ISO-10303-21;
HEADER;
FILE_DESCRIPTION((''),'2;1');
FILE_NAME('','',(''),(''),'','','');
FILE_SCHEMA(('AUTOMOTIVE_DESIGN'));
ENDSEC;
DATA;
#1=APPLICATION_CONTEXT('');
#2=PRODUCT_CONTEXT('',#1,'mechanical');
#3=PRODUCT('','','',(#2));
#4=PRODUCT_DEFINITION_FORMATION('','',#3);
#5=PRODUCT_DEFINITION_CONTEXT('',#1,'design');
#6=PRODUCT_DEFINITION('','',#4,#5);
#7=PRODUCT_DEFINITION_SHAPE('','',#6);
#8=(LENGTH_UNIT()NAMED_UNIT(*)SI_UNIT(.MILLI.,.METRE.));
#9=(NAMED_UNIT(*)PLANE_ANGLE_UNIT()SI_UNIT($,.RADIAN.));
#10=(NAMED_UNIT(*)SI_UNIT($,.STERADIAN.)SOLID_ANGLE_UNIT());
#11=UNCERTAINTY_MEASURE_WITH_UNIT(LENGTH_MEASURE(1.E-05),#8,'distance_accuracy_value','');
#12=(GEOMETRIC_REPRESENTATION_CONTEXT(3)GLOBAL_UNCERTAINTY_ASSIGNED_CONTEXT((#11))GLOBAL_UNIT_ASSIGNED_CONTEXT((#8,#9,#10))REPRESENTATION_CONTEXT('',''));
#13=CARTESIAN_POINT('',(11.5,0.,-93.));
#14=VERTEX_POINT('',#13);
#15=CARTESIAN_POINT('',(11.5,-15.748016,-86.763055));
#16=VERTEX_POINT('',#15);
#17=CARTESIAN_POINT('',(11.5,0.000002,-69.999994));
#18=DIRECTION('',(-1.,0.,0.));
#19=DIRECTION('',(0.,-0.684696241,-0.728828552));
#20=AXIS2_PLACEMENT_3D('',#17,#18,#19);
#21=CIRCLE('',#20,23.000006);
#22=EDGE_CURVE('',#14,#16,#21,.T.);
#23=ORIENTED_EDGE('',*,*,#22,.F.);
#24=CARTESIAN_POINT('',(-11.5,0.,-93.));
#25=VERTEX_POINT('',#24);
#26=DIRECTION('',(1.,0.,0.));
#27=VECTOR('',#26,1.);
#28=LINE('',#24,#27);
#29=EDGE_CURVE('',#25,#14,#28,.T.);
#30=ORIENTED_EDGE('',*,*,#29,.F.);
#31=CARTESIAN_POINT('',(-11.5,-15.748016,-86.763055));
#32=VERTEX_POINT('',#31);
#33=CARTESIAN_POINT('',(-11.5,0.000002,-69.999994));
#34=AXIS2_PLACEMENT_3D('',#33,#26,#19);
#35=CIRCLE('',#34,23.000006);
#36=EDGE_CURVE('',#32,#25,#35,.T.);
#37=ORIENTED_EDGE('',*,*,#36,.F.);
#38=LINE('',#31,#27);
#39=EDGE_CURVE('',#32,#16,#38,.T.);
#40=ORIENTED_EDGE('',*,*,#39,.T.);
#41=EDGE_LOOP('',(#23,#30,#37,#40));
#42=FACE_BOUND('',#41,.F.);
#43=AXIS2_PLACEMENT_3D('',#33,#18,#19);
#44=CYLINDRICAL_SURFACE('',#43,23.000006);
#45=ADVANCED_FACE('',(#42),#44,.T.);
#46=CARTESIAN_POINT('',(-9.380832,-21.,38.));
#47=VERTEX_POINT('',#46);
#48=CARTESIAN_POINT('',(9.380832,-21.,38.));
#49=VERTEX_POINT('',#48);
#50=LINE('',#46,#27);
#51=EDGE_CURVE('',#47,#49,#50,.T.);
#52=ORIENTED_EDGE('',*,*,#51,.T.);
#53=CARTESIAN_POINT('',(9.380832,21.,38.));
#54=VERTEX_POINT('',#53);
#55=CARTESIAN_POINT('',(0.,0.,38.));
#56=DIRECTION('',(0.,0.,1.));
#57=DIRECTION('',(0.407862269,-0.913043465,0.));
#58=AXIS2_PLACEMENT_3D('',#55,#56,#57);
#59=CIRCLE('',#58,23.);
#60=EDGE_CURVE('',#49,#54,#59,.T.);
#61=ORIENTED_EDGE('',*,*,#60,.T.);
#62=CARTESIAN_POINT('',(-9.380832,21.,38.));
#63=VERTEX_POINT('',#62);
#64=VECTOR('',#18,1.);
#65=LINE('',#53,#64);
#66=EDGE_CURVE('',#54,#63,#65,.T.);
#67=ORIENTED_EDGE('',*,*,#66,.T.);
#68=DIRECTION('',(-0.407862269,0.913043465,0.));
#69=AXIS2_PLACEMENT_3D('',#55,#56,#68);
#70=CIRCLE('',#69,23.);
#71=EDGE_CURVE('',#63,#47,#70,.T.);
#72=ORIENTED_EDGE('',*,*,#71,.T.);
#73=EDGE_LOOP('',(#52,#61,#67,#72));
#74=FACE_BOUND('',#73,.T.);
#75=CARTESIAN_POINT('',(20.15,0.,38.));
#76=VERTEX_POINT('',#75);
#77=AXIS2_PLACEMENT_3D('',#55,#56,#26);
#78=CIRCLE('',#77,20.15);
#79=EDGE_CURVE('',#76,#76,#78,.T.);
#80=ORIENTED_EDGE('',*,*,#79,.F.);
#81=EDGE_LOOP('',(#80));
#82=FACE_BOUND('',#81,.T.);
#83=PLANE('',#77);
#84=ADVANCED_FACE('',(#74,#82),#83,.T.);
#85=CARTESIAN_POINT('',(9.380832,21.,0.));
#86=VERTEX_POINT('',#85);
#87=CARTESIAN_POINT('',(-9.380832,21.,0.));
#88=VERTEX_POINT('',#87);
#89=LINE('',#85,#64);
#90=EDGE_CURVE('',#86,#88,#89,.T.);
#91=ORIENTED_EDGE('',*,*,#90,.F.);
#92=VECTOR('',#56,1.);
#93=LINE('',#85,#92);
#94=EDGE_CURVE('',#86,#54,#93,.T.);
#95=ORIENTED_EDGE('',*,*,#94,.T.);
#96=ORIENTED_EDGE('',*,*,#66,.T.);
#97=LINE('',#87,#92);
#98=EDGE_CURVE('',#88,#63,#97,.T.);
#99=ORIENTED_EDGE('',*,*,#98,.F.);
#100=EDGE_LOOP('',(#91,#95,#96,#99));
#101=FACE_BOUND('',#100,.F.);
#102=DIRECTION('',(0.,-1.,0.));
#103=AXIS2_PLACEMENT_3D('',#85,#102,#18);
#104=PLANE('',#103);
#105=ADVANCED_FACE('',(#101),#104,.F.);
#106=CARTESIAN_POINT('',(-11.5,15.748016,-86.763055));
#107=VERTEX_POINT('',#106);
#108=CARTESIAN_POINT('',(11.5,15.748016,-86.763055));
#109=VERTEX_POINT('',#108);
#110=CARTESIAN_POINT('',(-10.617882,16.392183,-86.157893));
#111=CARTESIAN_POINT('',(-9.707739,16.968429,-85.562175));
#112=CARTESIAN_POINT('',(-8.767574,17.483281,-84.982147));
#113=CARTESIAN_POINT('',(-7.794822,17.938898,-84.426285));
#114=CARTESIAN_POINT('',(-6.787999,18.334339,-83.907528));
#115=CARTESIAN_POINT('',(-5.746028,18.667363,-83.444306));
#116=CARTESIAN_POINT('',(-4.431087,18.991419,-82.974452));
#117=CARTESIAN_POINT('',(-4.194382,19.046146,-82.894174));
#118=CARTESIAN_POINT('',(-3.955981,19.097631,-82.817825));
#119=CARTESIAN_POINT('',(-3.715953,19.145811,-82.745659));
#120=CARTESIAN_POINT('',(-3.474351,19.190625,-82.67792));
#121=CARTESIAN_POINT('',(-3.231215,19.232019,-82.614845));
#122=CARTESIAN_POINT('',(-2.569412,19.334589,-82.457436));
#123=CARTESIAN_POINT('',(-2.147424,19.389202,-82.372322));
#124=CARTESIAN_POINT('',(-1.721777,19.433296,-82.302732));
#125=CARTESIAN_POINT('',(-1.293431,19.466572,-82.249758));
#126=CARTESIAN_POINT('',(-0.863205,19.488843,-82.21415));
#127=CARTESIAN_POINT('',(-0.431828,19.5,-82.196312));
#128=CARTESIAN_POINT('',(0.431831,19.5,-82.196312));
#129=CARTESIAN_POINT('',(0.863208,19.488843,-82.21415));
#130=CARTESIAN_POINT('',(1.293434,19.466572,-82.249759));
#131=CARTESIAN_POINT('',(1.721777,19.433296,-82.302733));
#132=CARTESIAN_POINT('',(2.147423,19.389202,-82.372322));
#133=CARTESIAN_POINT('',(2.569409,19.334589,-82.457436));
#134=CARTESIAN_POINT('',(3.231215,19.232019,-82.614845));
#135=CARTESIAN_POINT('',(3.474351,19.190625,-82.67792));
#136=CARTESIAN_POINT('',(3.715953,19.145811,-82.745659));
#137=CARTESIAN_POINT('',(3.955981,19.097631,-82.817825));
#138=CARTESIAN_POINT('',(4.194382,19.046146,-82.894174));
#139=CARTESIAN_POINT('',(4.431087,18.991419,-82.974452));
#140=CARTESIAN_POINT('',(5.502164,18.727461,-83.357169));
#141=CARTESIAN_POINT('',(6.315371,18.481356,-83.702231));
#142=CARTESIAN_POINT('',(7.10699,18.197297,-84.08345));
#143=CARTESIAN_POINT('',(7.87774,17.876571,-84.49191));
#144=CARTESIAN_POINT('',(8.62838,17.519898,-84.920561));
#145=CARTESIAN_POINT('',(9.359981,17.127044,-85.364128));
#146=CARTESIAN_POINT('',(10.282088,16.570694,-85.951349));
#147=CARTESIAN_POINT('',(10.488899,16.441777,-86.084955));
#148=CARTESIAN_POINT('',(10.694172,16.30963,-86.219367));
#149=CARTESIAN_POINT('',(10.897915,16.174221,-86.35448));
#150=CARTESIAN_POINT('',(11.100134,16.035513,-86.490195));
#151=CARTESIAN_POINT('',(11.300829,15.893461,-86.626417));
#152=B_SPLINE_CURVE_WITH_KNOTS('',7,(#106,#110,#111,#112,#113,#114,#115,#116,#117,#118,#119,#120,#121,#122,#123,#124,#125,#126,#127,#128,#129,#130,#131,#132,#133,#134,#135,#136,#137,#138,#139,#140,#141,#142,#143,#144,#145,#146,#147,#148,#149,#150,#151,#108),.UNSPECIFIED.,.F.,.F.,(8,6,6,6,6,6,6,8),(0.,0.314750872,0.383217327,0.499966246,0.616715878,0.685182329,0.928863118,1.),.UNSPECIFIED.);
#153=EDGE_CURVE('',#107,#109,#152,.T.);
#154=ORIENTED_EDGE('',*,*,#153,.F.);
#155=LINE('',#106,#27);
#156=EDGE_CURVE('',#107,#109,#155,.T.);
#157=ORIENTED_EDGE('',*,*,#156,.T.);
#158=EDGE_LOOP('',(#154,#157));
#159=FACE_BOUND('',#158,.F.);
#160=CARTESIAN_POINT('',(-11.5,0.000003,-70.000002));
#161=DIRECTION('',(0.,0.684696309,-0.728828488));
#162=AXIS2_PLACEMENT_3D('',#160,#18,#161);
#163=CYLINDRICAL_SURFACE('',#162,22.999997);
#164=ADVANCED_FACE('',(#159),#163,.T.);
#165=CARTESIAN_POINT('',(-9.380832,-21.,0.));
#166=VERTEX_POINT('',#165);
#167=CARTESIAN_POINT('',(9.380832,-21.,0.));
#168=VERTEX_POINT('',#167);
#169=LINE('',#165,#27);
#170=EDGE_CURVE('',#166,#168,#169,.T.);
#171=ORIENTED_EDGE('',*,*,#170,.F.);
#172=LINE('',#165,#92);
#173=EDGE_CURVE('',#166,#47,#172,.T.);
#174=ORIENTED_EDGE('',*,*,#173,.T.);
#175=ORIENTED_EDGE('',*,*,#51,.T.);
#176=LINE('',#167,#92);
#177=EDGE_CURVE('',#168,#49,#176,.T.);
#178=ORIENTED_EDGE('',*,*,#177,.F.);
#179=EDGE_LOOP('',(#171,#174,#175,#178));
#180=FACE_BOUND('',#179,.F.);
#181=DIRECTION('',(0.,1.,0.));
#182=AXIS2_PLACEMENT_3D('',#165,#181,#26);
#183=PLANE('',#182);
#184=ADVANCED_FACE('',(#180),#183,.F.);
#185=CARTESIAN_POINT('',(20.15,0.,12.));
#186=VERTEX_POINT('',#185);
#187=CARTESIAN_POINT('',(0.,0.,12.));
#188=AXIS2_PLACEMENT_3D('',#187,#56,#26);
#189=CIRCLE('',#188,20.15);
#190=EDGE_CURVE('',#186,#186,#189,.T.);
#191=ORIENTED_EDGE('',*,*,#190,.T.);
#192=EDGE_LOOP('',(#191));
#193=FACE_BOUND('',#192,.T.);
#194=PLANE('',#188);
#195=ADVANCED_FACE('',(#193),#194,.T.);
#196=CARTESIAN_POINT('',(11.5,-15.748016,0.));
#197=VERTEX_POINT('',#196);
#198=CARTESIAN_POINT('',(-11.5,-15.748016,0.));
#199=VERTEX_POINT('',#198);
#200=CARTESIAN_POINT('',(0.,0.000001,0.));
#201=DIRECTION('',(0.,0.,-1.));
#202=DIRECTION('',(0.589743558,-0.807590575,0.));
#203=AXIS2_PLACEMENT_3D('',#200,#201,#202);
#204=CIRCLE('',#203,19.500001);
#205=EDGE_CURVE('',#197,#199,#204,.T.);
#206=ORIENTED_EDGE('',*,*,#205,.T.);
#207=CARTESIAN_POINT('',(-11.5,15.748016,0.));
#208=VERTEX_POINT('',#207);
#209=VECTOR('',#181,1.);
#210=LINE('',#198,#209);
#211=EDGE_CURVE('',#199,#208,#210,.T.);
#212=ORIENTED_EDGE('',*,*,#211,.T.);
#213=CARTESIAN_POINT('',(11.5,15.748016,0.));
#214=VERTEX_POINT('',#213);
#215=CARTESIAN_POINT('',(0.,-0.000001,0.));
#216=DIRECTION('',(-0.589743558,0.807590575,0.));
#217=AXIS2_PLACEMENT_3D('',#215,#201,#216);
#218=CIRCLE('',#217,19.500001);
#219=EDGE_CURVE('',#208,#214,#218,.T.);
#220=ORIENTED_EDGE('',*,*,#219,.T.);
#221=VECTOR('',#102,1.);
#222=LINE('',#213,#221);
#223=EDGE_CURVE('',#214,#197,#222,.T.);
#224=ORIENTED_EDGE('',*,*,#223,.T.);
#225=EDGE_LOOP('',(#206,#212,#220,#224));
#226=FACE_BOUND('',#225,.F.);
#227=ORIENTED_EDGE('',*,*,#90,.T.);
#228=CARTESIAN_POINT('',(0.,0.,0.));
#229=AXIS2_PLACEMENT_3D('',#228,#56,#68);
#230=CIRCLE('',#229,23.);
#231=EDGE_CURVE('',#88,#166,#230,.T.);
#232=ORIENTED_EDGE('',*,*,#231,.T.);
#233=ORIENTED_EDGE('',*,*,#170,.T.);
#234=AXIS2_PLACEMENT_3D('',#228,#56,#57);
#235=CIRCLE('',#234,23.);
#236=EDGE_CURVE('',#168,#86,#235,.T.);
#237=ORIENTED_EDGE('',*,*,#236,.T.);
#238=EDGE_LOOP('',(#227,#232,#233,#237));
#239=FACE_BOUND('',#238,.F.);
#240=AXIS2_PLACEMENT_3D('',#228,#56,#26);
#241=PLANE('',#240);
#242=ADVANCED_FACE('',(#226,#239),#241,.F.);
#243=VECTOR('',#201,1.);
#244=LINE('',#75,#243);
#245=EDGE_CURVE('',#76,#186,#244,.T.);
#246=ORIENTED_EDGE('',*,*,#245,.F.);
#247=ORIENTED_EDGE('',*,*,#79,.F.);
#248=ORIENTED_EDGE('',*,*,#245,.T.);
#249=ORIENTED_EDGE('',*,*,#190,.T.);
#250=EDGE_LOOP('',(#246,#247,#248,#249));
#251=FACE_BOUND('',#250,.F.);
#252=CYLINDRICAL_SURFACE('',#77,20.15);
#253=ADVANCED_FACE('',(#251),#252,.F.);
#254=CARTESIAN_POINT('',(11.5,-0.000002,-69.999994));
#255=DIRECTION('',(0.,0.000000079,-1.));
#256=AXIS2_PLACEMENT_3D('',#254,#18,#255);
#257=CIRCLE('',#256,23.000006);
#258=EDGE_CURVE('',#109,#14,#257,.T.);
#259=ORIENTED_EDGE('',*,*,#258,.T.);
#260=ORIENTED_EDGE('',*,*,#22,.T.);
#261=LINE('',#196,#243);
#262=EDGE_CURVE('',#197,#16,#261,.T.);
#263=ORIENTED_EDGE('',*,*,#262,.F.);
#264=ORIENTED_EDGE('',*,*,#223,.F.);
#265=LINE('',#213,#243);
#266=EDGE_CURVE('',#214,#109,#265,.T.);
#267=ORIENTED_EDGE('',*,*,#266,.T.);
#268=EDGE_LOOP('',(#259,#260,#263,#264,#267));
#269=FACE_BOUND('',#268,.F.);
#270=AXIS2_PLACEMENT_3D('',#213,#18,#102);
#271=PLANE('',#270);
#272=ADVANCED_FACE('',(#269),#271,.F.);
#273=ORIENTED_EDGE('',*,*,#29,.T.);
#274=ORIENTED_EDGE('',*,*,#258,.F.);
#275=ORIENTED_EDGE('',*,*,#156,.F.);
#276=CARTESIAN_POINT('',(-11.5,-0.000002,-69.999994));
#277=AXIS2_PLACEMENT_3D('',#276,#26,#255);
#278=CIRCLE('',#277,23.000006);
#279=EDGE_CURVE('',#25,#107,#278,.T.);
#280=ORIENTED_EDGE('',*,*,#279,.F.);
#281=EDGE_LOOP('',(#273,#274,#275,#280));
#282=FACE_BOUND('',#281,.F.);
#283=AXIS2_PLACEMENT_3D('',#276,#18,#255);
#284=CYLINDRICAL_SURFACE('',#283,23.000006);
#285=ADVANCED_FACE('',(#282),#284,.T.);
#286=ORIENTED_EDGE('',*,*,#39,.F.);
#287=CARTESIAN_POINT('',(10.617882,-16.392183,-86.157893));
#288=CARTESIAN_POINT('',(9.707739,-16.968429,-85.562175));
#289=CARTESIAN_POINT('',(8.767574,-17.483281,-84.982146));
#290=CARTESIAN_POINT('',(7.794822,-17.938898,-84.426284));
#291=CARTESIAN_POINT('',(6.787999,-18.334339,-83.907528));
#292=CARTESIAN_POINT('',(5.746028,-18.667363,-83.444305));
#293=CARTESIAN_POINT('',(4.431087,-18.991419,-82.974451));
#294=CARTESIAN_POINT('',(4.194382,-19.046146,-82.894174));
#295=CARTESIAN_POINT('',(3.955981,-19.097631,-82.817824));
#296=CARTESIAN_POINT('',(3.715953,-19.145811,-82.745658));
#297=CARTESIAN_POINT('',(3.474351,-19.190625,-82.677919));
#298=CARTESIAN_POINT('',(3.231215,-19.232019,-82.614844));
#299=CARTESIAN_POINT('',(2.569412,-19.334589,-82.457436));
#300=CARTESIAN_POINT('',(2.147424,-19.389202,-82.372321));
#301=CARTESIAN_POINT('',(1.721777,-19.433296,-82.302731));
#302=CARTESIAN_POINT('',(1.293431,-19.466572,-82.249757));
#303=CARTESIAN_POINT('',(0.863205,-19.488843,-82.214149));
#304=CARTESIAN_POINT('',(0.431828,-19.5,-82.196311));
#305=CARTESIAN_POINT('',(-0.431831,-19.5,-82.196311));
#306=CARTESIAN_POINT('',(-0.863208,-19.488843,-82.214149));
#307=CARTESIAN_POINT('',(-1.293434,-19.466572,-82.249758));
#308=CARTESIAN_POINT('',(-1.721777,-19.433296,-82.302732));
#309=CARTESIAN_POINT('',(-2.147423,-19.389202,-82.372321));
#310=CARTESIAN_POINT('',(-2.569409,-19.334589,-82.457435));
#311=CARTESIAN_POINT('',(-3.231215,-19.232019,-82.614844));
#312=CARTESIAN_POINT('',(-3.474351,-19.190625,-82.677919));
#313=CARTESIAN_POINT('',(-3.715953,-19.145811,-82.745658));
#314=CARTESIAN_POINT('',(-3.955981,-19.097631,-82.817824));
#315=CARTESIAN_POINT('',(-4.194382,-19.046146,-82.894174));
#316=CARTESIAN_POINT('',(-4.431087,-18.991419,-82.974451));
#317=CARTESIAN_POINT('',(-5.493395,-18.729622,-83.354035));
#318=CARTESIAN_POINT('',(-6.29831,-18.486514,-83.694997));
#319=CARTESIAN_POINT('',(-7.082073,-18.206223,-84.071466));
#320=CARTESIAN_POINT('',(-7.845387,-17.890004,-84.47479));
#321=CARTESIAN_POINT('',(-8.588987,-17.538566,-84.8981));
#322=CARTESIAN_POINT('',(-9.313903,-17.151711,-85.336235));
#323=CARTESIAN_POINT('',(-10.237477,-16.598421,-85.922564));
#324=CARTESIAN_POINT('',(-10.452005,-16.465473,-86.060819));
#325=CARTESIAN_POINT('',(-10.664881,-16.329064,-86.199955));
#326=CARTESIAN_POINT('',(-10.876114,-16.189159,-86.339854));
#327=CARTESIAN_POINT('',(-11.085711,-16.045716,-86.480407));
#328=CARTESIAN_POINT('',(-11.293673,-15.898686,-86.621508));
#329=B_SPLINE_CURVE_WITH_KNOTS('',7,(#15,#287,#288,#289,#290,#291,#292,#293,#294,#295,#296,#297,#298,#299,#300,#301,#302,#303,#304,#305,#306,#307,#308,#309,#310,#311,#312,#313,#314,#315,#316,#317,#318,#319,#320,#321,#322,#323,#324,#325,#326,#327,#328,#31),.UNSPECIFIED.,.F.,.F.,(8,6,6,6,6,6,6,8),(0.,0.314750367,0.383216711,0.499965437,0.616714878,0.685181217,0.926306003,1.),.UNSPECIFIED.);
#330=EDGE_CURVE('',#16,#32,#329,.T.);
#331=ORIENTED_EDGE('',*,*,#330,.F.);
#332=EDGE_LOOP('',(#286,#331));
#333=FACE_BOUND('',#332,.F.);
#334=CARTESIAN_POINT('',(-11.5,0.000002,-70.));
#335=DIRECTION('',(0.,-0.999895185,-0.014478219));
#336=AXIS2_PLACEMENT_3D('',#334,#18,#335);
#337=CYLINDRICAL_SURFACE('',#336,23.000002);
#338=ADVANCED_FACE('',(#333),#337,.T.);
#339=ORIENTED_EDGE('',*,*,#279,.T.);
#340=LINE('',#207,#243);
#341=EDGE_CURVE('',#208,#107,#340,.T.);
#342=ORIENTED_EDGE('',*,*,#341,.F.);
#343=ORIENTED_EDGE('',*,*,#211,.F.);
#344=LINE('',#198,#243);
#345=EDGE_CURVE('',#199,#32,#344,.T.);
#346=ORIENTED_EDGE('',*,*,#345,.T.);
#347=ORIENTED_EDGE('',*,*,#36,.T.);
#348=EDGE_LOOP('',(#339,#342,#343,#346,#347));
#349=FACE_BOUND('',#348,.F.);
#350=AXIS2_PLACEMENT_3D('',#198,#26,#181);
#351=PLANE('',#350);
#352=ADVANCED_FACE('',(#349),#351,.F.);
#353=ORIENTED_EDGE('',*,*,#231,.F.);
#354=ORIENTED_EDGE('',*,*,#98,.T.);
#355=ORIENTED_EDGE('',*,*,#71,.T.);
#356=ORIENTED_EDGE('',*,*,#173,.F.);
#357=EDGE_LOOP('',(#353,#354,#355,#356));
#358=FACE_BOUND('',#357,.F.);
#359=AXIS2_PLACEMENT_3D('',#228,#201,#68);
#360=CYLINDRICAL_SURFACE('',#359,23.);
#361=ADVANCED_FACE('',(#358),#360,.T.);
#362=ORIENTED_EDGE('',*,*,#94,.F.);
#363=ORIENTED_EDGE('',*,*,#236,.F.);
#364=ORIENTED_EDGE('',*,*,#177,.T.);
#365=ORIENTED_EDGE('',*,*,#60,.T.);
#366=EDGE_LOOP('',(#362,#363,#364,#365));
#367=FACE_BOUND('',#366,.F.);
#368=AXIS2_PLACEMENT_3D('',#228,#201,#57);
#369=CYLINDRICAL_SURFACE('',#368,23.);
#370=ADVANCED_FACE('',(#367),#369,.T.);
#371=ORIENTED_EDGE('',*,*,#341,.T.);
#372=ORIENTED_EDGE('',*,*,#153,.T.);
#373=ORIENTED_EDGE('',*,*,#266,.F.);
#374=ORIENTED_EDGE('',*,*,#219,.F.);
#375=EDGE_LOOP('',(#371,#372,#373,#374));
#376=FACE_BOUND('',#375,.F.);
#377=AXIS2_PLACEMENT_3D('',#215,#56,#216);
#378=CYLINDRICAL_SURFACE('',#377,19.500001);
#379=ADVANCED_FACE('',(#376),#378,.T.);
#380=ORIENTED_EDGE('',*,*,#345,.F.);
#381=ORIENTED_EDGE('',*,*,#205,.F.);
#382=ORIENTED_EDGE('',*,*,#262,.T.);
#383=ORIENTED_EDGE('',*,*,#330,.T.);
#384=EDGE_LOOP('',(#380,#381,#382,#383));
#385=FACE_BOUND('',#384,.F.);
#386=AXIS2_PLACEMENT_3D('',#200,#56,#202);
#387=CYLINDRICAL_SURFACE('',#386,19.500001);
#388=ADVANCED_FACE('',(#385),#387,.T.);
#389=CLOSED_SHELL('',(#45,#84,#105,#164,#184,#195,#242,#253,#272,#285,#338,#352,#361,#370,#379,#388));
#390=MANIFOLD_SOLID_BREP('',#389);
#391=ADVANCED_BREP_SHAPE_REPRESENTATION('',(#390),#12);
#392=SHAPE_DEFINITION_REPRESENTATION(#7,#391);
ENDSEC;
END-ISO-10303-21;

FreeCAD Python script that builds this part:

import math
import FreeCAD as App
import Part
import Sketcher
Q = App.Units.Quantity

doc = App.newDocument("Part")
body = doc.addObject("PartDesign::Body", "Body")

sketch1 = body.newObject("Sketcher::SketchObject", "Sketch")
sketch1.AttachmentSupport = (doc.getObject("XY_Plane"), [""])
sketch1.MapMode = "FlatFace"
sketch1.addGeometry([
    Part.LineSegment(App.Vector(9, 21, 0), App.Vector(-9, 21, 0)),
    Part.ArcOfCircle(Part.Circle(App.Vector(0, 0, 0), App.Vector(0, 0, 1), 23), math.radians(114), math.radians(246)),
    Part.LineSegment(App.Vector(-9, -21, 0), App.Vector(9, -21, 0)),
    Part.ArcOfCircle(Part.Circle(App.Vector(0, 0, 0), App.Vector(0, 0, 1), 23), math.radians(-66), math.radians(66)),
], False)
sketch1.addConstraint([
    Sketcher.Constraint("Coincident", 0, 2, 1, 1),
    Sketcher.Constraint("Coincident", 1, 2, 2, 1),
    Sketcher.Constraint("Coincident", 2, 2, 3, 1),
    Sketcher.Constraint("Coincident", 3, 2, 0, 1),
    Sketcher.Constraint("Horizontal", 0),
    Sketcher.Constraint("Horizontal", 2),
    Sketcher.Constraint("Coincident", 1, 3, -1, 1),
    Sketcher.Constraint("Coincident", 3, 3, -1, 1),
    Sketcher.Constraint("Equal", 1, 3),
    Sketcher.Constraint("Vertical", 0, 2, 1, 2),
    Sketcher.Constraint("Radius", 1, Q("23 mm")),
    Sketcher.Constraint("DistanceY", -1, 1, 0, 2, Q("21 mm")),
])
pad1 = body.newObject("PartDesign::Pad", "Pad")
pad1.Profile = sketch1
pad1.Length = 38

sketch2 = body.newObject("Sketcher::SketchObject", "Sketch001")
sketch2.AttachmentSupport = (doc.getObject("XY_Plane"), [""])
sketch2.MapMode = "FlatFace"
sketch2.AttachmentOffset = App.Placement(App.Vector(0, 0, 38), App.Rotation())
sketch2.addGeometry(Part.Circle(App.Vector(0, 0, 0), App.Vector(0, 0, 1), 20), False)
sketch2.addConstraint([
    Sketcher.Constraint("Coincident", 0, 3, -1, 1),
    Sketcher.Constraint("Diameter", 0, Q("40.3 mm")),
])
pocket1 = body.newObject("PartDesign::Pocket", "Pocket")
pocket1.Profile = sketch2
pocket1.Length = 26

sketch3 = body.newObject("Sketcher::SketchObject", "Sketch002")
sketch3.AttachmentSupport = (doc.getObject("XY_Plane"), [""])
sketch3.MapMode = "FlatFace"
sketch3.addGeometry([
    Part.LineSegment(App.Vector(-12, -16, 0), App.Vector(-12, 16, 0)),
    Part.ArcOfCircle(Part.Circle(App.Vector(0, 0, 0), App.Vector(0, 0, 1), 20), math.radians(54), math.radians(126)),
    Part.LineSegment(App.Vector(12, 16, 0), App.Vector(12, -16, 0)),
    Part.ArcOfCircle(Part.Circle(App.Vector(0, 0, 0), App.Vector(0, 0, 1), 20), math.radians(-126), math.radians(-54)),
], False)
sketch3.addConstraint([
    Sketcher.Constraint("Coincident", 0, 2, 1, 2),
    Sketcher.Constraint("Coincident", 1, 1, 2, 1),
    Sketcher.Constraint("Coincident", 2, 2, 3, 2),
    Sketcher.Constraint("Coincident", 3, 1, 0, 1),
    Sketcher.Constraint("Vertical", 0),
    Sketcher.Constraint("Vertical", 2),
    Sketcher.Constraint("Coincident", 1, 3, -1, 1),
    Sketcher.Constraint("Coincident", 3, 3, -1, 1),
    Sketcher.Constraint("Equal", 1, 3),
    Sketcher.Constraint("Horizontal", 0, 2, 1, 1),
    Sketcher.Constraint("Radius", 1, Q("19.500001 mm")),
    Sketcher.Constraint("DistanceX", 0, 2, 1, 1, Q("23 mm")),
])
pad2 = body.newObject("PartDesign::Pad", "Pad001")
pad2.Profile = sketch3
pad2.Length = 93
pad2.Reversed = True

sketch4 = body.newObject("Sketcher::SketchObject", "Sketch003")
sketch4.AttachmentSupport = (doc.getObject("YZ_Plane"), [""])
sketch4.MapMode = "FlatFace"
sketch4.AttachmentOffset = App.Placement(App.Vector(0, 0, -11.5), App.Rotation())
sketch4.addGeometry([
    Part.ArcOfCircle(Part.Circle(App.Vector(0, -70, 0), App.Vector(0, 0, 1), 23), math.radians(-133), math.radians(-90)),
    Part.ArcOfCircle(Part.Circle(App.Vector(0, -70, 0), App.Vector(0, 0, 1), 23), math.radians(-90), math.radians(-47)),
    Part.ArcOfCircle(Part.Circle(App.Vector(0, -70, 0), App.Vector(0, 0, 1), 23), math.radians(-47), math.radians(3)),
    Part.LineSegment(App.Vector(23, -69, 0), App.Vector(36, -106, 0)),
    Part.LineSegment(App.Vector(36, -106, 0), App.Vector(-23, -108, 0)),
    Part.LineSegment(App.Vector(-23, -108, 0), App.Vector(-23, -70, 0)),
    Part.ArcOfCircle(Part.Circle(App.Vector(0, -70, 0), App.Vector(0, 0, 1), 23), math.radians(-179), math.radians(-133)),
], False)
sketch4.addConstraint([
    Sketcher.Constraint("Tangent", 0, 2, 1, 1),
    Sketcher.Constraint("Tangent", 1, 2, 2, 1),
    Sketcher.Constraint("Coincident", 2, 2, 3, 1),
    Sketcher.Constraint("Coincident", 3, 2, 4, 1),
    Sketcher.Constraint("Coincident", 4, 2, 5, 1),
    Sketcher.Constraint("Coincident", 5, 2, 6, 1),
    Sketcher.Constraint("Tangent", 6, 2, 0, 1),
    Sketcher.Constraint("Vertical", 5),
    Sketcher.Constraint("Coincident", 2, 3, 0, 3),
    Sketcher.Constraint("Symmetric", 1, 2, 6, 2, -2),
    Sketcher.Constraint("PointOnObject", 0, 2, -2),
    Sketcher.Constraint("DistanceY", 6, 3, -1, 1, Q("70 mm")),
    Sketcher.Constraint("DistanceY", 0, 2, -1, 1, Q("93 mm")),
    Sketcher.Constraint("DistanceY", 5, 2, -1, 1, Q("70.332999 mm")),
    Sketcher.Constraint("Radius", 0, Q("23.000006 mm")),
    Sketcher.Constraint("DistanceY", 5, 1, 5, 2, Q("38.053132 mm")),
    Sketcher.Constraint("DistanceY", 2, 2, -1, 1, Q("68.96581 mm")),
    Sketcher.Constraint("DistanceY", 1, 2, 0, 3, Q("16.763061 mm")),
    Sketcher.Constraint("DistanceX", 1, 2, 3, 2, Q("20.107281 mm")),
    Sketcher.Constraint("DistanceY", 3, 2, 1, 2, Q("19.243739 mm")),
])
pocket2 = body.newObject("PartDesign::Pocket", "Pocket001")
pocket2.Profile = sketch4
pocket2.Type = "ThroughAll"
pocket2.Reversed = True

doc.recompute()
